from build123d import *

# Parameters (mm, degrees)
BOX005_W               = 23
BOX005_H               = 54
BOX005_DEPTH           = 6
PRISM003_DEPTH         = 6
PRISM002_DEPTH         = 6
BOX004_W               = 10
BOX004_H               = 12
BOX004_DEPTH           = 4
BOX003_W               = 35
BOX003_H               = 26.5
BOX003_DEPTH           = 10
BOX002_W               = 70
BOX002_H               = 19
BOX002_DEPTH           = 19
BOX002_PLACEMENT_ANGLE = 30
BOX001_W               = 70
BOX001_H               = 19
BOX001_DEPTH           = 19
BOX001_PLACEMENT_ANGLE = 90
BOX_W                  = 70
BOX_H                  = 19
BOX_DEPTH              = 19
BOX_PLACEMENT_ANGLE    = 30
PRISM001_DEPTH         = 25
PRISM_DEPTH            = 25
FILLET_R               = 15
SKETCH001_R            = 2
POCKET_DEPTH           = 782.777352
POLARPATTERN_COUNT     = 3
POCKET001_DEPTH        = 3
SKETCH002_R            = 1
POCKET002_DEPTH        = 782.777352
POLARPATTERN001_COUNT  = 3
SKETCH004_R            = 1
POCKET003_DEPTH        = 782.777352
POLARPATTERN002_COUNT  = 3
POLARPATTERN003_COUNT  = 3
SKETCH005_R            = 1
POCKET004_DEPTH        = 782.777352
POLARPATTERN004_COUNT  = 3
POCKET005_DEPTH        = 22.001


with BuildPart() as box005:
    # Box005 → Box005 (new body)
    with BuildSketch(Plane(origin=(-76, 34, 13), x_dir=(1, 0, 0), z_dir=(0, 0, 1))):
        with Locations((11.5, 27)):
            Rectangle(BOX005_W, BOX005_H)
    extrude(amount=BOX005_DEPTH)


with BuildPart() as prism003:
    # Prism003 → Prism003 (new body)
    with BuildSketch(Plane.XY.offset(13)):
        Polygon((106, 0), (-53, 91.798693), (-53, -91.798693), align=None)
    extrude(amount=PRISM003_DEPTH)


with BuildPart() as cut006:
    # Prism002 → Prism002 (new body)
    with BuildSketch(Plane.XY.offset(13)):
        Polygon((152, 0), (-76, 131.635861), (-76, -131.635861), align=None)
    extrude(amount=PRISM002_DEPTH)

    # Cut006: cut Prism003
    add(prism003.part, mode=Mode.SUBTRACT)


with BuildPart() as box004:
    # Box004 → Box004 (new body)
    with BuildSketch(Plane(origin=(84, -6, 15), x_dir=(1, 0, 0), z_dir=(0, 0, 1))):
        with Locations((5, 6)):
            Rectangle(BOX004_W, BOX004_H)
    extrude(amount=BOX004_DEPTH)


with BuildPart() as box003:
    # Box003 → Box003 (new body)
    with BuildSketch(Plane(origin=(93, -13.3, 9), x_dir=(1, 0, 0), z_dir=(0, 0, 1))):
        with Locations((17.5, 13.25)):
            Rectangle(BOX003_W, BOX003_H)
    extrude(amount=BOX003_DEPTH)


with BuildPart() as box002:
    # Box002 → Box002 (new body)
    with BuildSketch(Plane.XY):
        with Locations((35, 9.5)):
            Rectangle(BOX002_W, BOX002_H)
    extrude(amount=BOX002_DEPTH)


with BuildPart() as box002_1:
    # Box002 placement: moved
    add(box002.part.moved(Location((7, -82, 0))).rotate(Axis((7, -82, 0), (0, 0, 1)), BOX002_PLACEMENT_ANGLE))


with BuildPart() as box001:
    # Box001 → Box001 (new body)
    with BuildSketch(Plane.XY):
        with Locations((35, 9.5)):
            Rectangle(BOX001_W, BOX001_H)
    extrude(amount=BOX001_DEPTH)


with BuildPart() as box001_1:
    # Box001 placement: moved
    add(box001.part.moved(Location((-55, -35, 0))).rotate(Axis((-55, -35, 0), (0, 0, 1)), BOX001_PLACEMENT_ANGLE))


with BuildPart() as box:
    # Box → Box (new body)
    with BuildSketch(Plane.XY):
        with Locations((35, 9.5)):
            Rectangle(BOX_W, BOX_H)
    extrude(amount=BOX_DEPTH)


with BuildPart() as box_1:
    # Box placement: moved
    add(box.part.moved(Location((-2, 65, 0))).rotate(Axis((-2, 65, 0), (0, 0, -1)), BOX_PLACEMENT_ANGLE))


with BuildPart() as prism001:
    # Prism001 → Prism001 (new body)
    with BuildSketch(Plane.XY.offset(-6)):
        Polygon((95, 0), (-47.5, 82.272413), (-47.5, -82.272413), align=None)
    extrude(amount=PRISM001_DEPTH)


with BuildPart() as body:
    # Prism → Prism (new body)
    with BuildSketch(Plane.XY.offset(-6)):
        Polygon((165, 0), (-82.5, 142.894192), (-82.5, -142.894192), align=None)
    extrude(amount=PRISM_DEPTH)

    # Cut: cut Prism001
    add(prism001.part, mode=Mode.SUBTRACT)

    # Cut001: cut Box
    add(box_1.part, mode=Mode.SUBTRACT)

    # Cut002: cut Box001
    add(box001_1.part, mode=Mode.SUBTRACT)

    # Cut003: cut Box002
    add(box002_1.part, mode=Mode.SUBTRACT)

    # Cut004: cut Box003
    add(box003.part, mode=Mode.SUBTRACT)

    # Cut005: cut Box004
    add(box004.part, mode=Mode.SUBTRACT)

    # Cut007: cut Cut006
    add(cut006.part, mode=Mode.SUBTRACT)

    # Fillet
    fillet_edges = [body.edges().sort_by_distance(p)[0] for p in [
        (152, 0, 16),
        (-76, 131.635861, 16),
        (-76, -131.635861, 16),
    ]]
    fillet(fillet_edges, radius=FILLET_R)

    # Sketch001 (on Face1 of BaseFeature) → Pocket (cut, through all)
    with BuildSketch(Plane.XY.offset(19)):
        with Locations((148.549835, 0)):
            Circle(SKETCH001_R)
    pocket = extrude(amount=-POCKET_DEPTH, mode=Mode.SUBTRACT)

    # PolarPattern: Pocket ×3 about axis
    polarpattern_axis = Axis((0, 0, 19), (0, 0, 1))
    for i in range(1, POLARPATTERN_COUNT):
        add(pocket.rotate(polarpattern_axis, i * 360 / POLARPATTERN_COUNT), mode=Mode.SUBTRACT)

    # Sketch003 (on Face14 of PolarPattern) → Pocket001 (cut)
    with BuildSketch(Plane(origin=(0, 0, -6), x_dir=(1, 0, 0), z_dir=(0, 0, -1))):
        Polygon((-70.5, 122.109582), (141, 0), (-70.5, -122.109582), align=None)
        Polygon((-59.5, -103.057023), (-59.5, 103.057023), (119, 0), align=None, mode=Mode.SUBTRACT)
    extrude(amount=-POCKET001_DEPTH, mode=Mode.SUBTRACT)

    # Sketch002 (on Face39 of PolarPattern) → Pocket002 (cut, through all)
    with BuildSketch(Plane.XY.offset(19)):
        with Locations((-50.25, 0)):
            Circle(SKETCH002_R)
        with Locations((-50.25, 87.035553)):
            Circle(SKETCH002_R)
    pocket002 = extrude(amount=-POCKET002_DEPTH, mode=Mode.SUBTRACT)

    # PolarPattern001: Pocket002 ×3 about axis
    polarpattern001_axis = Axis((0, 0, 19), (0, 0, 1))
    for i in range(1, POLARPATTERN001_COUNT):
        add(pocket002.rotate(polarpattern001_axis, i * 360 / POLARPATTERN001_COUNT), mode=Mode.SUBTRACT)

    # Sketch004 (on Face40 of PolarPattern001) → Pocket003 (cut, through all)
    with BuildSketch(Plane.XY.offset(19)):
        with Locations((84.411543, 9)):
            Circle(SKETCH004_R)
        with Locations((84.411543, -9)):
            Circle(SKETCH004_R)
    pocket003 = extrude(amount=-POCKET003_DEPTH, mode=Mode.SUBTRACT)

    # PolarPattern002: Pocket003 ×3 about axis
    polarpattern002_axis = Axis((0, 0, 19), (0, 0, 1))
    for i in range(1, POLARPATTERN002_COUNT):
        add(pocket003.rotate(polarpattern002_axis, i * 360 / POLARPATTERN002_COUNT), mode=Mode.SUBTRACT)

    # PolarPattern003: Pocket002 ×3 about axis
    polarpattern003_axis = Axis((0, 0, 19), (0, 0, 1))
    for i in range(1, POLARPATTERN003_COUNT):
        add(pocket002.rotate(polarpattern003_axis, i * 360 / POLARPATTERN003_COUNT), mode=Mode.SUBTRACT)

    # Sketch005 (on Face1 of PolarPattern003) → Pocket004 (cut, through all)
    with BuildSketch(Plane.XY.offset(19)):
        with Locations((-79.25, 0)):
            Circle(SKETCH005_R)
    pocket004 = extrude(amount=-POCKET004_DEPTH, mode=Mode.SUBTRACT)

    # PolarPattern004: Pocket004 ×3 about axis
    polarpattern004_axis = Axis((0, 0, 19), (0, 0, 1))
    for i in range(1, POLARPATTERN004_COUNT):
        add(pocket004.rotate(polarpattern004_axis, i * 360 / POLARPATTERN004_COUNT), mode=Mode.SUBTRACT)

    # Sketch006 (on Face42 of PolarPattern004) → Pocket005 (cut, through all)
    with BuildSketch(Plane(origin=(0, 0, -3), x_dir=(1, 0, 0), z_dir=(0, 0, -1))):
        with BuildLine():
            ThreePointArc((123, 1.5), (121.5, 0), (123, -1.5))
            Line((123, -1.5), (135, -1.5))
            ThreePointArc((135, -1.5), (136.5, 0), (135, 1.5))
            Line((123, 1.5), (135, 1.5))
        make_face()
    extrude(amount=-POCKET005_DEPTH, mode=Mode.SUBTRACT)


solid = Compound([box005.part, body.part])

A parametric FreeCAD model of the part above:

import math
import FreeCAD as App
import Part
import Sketcher
Q = App.Units.Quantity


def edges_at(feature, points):
    """Names of the edges that pass closest to the given points."""
    edges = feature.Shape.Edges
    near = lambda p: min(range(len(edges)), key=lambda i: edges[i].distToShape(Part.Vertex(*p))[0])
    return sorted({f"Edge{near(p) + 1}" for p in points})


def add_polygon(sketch, points):
    """Adds a closed chain of lines whose ends are joined by coincident constraints."""
    first, n = sketch.GeometryCount, len(points)
    for a, b in zip(points, points[1:] + points[:1]):
        sketch.addGeometry(Part.LineSegment(App.Vector(*a, 0), App.Vector(*b, 0)), False)
    for i in range(n):
        sketch.addConstraint(Sketcher.Constraint("Coincident", first + i, 2, first + (i + 1) % n, 1))

doc = App.newDocument("Part")
body = doc.addObject("PartDesign::Body", "Body")

sketch1 = body.newObject("Sketcher::SketchObject", "Sketch")
sketch1.AttachmentSupport = (doc.getObject("XY_Plane"), [""])
sketch1.MapMode = "FlatFace"
sketch1.AttachmentOffset = App.Placement(App.Vector(0, 0, 13), App.Rotation())
add_polygon(sketch1, [(-76, 88), (-76, 34), (-53, 34), (-53, 88)])
sketch1.addConstraint([
    Sketcher.Constraint("Vertical", 0),
    Sketcher.Constraint("Horizontal", 1),
    Sketcher.Constraint("Vertical", 2),
    Sketcher.Constraint("Horizontal", 3),
    Sketcher.Constraint("DistanceX", 1, 1, 1, 2, Q("23 mm")),
    Sketcher.Constraint("DistanceY", 0, 2, 0, 1, Q("54 mm")),
    Sketcher.Constraint("DistanceX", 0, 2, -1, 1, Q("76 mm")),
    Sketcher.Constraint("DistanceY", -1, 1, 0, 2, Q("34 mm")),
])
pad1 = body.newObject("PartDesign::Pad", "Pad")
pad1.Profile = sketch1
pad1.Length = 6
body2 = doc.addObject("PartDesign::Body", "Body001")

sketch2 = body2.newObject("Sketcher::SketchObject", "Sketch001")
sketch2.AttachmentSupport = (doc.getObject("XY_Plane001"), [""])
sketch2.MapMode = "FlatFace"
sketch2.AttachmentOffset = App.Placement(App.Vector(0, 0, 13), App.Rotation())
add_polygon(sketch2, [(106, 0), (-53, 91.798693), (-53, -91.798693)])
sketch2.addConstraint([
    Sketcher.Constraint("Vertical", 1),
    Sketcher.Constraint("PointOnObject", 2, 2, -1),
    Sketcher.Constraint("Equal", 0, 2),
    Sketcher.Constraint("Angle", 0, Q("150 deg")),
    Sketcher.Constraint("DistanceX", 0, 2, -1, 1, Q("53 mm")),
    Sketcher.Constraint("DistanceX", -1, 1, 2, 2, Q("106 mm")),
])
pad2 = body2.newObject("PartDesign::Pad", "Pad001")
pad2.Profile = sketch2
pad2.Length = 6
body3 = doc.addObject("PartDesign::Body", "Body002")

sketch3 = body3.newObject("Sketcher::SketchObject", "Sketch002")
sketch3.AttachmentSupport = (doc.getObject("XY_Plane002"), [""])
sketch3.MapMode = "FlatFace"
sketch3.AttachmentOffset = App.Placement(App.Vector(0, 0, 13), App.Rotation())
add_polygon(sketch3, [(152, 0), (-76, 131.635861), (-76, -131.635861)])
sketch3.addConstraint([
    Sketcher.Constraint("Vertical", 1),
    Sketcher.Constraint("PointOnObject", 2, 2, -1),
    Sketcher.Constraint("Equal", 0, 2),
    Sketcher.Constraint("Angle", 0, Q("150 deg")),
    Sketcher.Constraint("DistanceX", 0, 2, -1, 1, Q("76 mm")),
    Sketcher.Constraint("DistanceX", -1, 1, 2, 2, Q("152 mm")),
])
pad3 = body3.newObject("PartDesign::Pad", "Pad002")
pad3.Profile = sketch3
pad3.Length = 6
doc.recompute()

boolean = body3.newObject("PartDesign::Boolean", "Boolean")
boolean.Type = "Cut"
boolean.addObjects([body2])
body4 = doc.addObject("PartDesign::Body", "Body003")

sketch4 = body4.newObject("Sketcher::SketchObject", "Sketch003")
sketch4.AttachmentSupport = (doc.getObject("XY_Plane003"), [""])
sketch4.MapMode = "FlatFace"
sketch4.AttachmentOffset = App.Placement(App.Vector(0, 0, 15), App.Rotation())
add_polygon(sketch4, [(84, 6), (84, -6), (94, -6), (94, 6)])
sketch4.addConstraint([
    Sketcher.Constraint("Vertical", 0),
    Sketcher.Constraint("Horizontal", 1),
    Sketcher.Constraint("Vertical", 2),
    Sketcher.Constraint("Horizontal", 3),
    Sketcher.Constraint("DistanceX", 1, 1, 1, 2, Q("10 mm")),
    Sketcher.Constraint("DistanceY", 0, 2, 0, 1, Q("12 mm")),
    Sketcher.Constraint("DistanceX", -1, 1, 0, 2, Q("84 mm")),
    Sketcher.Constraint("DistanceY", 0, 2, -1, 1, Q("6 mm")),
])
pad4 = body4.newObject("PartDesign::Pad", "Pad003")
pad4.Profile = sketch4
pad4.Length = 4
body5 = doc.addObject("PartDesign::Body", "Body004")

sketch5 = body5.newObject("Sketcher::SketchObject", "Sketch004")
sketch5.AttachmentSupport = (doc.getObject("XY_Plane004"), [""])
sketch5.MapMode = "FlatFace"
sketch5.AttachmentOffset = App.Placement(App.Vector(0, 0, 9), App.Rotation())
add_polygon(sketch5, [(93, 13.2), (93, -13.3), (128, -13.3), (128, 13.2)])
sketch5.addConstraint([
    Sketcher.Constraint("Vertical", 0),
    Sketcher.Constraint("Horizontal", 1),
    Sketcher.Constraint("Vertical", 2),
    Sketcher.Constraint("Horizontal", 3),
    Sketcher.Constraint("DistanceX", 1, 1, 1, 2, Q("35 mm")),
    Sketcher.Constraint("DistanceY", 0, 2, 0, 1, Q("26.5 mm")),
    Sketcher.Constraint("DistanceX", -1, 1, 0, 2, Q("93 mm")),
    Sketcher.Constraint("DistanceY", 0, 2, -1, 1, Q("13.3 mm")),
])
pad5 = body5.newObject("PartDesign::Pad", "Pad004")
pad5.Profile = sketch5
pad5.Length = 10
body6 = doc.addObject("PartDesign::Body", "Body005")

sketch6 = body6.newObject("Sketcher::SketchObject", "Sketch005")
sketch6.AttachmentSupport = (doc.getObject("XY_Plane005"), [""])
sketch6.MapMode = "FlatFace"
add_polygon(sketch6, [(0, 19), (0, 0), (70, 0), (70, 19)])
sketch6.addConstraint([
    Sketcher.Constraint("Vertical", 0),
    Sketcher.Constraint("Horizontal", 1),
    Sketcher.Constraint("Vertical", 2),
    Sketcher.Constraint("Horizontal", 3),
    Sketcher.Constraint("Coincident", 0, 2, -1, 1),
    Sketcher.Constraint("DistanceX", 1, 1, 1, 2, Q("70 mm")),
    Sketcher.Constraint("DistanceY", 0, 2, 0, 1, Q("19 mm")),
])
pad6 = body6.newObject("PartDesign::Pad", "Pad005")
pad6.Profile = sketch6
pad6.Length = 19
body7 = doc.addObject("PartDesign::Body", "Body006")
doc.recompute()

body6.Placement = App.Placement(App.Vector(7, -82, 0), App.Rotation(App.Vector(0, 0, 1), 30))
boolean2 = body7.newObject("PartDesign::Boolean", "Boolean001")
boolean2.Type = "Fuse"
boolean2.addObjects([body6])
body8 = doc.addObject("PartDesign::Body", "Body007")

sketch7 = body8.newObject("Sketcher::SketchObject", "Sketch006")
sketch7.AttachmentSupport = (doc.getObject("XY_Plane007"), [""])
sketch7.MapMode = "FlatFace"
add_polygon(sketch7, [(0, 19), (0, 0), (70, 0), (70, 19)])
sketch7.addConstraint([
    Sketcher.Constraint("Vertical", 0),
    Sketcher.Constraint("Horizontal", 1),
    Sketcher.Constraint("Vertical", 2),
    Sketcher.Constraint("Horizontal", 3),
    Sketcher.Constraint("Coincident", 0, 2, -1, 1),
    Sketcher.Constraint("DistanceX", 1, 1, 1, 2, Q("70 mm")),
    Sketcher.Constraint("DistanceY", 0, 2, 0, 1, Q("19 mm")),
])
pad7 = body8.newObject("PartDesign::Pad", "Pad006")
pad7.Profile = sketch7
pad7.Length = 19
body9 = doc.addObject("PartDesign::Body", "Body008")
doc.recompute()

body8.Placement = App.Placement(App.Vector(-55, -35, 0), App.Rotation(App.Vector(0, 0, 1), 90))
boolean3 = body9.newObject("PartDesign::Boolean", "Boolean002")
boolean3.Type = "Fuse"
boolean3.addObjects([body8])
body10 = doc.addObject("PartDesign::Body", "Body009")

sketch8 = body10.newObject("Sketcher::SketchObject", "Sketch007")
sketch8.AttachmentSupport = (doc.getObject("XY_Plane009"), [""])
sketch8.MapMode = "FlatFace"
add_polygon(sketch8, [(0, 19), (0, 0), (70, 0), (70, 19)])
sketch8.addConstraint([
    Sketcher.Constraint("Vertical", 0),
    Sketcher.Constraint("Horizontal", 1),
    Sketcher.Constraint("Vertical", 2),
    Sketcher.Constraint("Horizontal", 3),
    Sketcher.Constraint("Coincident", 0, 2, -1, 1),
    Sketcher.Constraint("DistanceX", 1, 1, 1, 2, Q("70 mm")),
    Sketcher.Constraint("DistanceY", 0, 2, 0, 1, Q("19 mm")),
])
pad8 = body10.newObject("PartDesign::Pad", "Pad007")
pad8.Profile = sketch8
pad8.Length = 19
body11 = doc.addObject("PartDesign::Body", "Body010")
doc.recompute()

body10.Placement = App.Placement(App.Vector(-2, 65, 0), App.Rotation(App.Vector(0, 0, -1), 30))
boolean4 = body11.newObject("PartDesign::Boolean", "Boolean003")
boolean4.Type = "Fuse"
boolean4.addObjects([body10])
body12 = doc.addObject("PartDesign::Body", "Body011")

sketch9 = body12.newObject("Sketcher::SketchObject", "Sketch008")
sketch9.AttachmentSupport = (doc.getObject("XY_Plane011"), [""])
sketch9.MapMode = "FlatFace"
sketch9.AttachmentOffset = App.Placement(App.Vector(0, 0, -6), App.Rotation())
add_polygon(sketch9, [(95, 0), (-47.5, 82.272413), (-47.5, -82.272413)])
sketch9.addConstraint([
    Sketcher.Constraint("Vertical", 1),
    Sketcher.Constraint("PointOnObject", 2, 2, -1),
    Sketcher.Constraint("Equal", 0, 2),
    Sketcher.Constraint("Angle", 0, Q("150 deg")),
    Sketcher.Constraint("DistanceX", -1, 1, 2, 2, Q("95 mm")),
    Sketcher.Constraint("DistanceX", 0, 2, -1, 1, Q("47.5 mm")),
])
pad9 = body12.newObject("PartDesign::Pad", "Pad008")
pad9.Profile = sketch9
pad9.Length = 25
body13 = doc.addObject("PartDesign::Body", "Body012")

sketch10 = body13.newObject("Sketcher::SketchObject", "Sketch009")
sketch10.AttachmentSupport = (doc.getObject("XY_Plane012"), [""])
sketch10.MapMode = "FlatFace"
sketch10.AttachmentOffset = App.Placement(App.Vector(0, 0, -6), App.Rotation())
add_polygon(sketch10, [(165, 0), (-82.5, 142.894192), (-82.5, -142.894192)])
sketch10.addConstraint([
    Sketcher.Constraint("Vertical", 1),
    Sketcher.Constraint("PointOnObject", 2, 2, -1),
    Sketcher.Constraint("Equal", 0, 2),
    Sketcher.Constraint("Angle", 0, Q("150 deg")),
    Sketcher.Constraint("DistanceX", -1, 1, 2, 2, Q("165 mm")),
    Sketcher.Constraint("DistanceX", 0, 2, -1, 1, Q("82.5 mm")),
])
pad10 = body13.newObject("PartDesign::Pad", "Pad009")
pad10.Profile = sketch10
pad10.Length = 25
doc.recompute()

boolean5 = body13.newObject("PartDesign::Boolean", "Boolean004")
boolean5.Type = "Cut"
boolean5.addObjects([body12])
doc.recompute()

boolean6 = body13.newObject("PartDesign::Boolean", "Boolean005")
boolean6.Type = "Cut"
boolean6.addObjects([body11])
doc.recompute()

boolean7 = body13.newObject("PartDesign::Boolean", "Boolean006")
boolean7.Type = "Cut"
boolean7.addObjects([body9])
doc.recompute()

boolean8 = body13.newObject("PartDesign::Boolean", "Boolean007")
boolean8.Type = "Cut"
boolean8.addObjects([body7])
doc.recompute()

boolean9 = body13.newObject("PartDesign::Boolean", "Boolean008")
boolean9.Type = "Cut"
boolean9.addObjects([body5])
doc.recompute()

boolean10 = body13.newObject("PartDesign::Boolean", "Boolean009")
boolean10.Type = "Cut"
boolean10.addObjects([body4])
doc.recompute()

boolean11 = body13.newObject("PartDesign::Boolean", "Boolean010")
boolean11.Type = "Cut"
boolean11.addObjects([body3])
doc.recompute()

fillet = body13.newObject("PartDesign::Fillet", "Fillet")
fillet.Base = (boolean11, edges_at(boolean11, [(152, 0, 16), (-76, 131.636, 16), (-76, -131.636, 16)]))
fillet.Radius = 15

sketch11 = body13.newObject("Sketcher::SketchObject", "Sketch010")
sketch11.AttachmentSupport = (doc.getObject("XY_Plane012"), [""])
sketch11.MapMode = "FlatFace"
sketch11.AttachmentOffset = App.Placement(App.Vector(0, 0, 19), App.Rotation())
sketch11.addGeometry(Part.Circle(App.Vector(148.549835, 0, 0), App.Vector(0, 0, 1), 2), False)
sketch11.addConstraint([
    Sketcher.Constraint("PointOnObject", 0, 3, -1),
    Sketcher.Constraint("Diameter", 0, Q("4 mm")),
    Sketcher.Constraint("DistanceX", -1, 1, 0, 3, Q("148.549835 mm")),
])
pocket1 = body13.newObject("PartDesign::Pocket", "Pocket")
pocket1.Profile = sketch11
pocket1.Type = "ThroughAll"
doc.recompute()

polarpattern = body13.newObject("PartDesign::PolarPattern", "PolarPattern")
polarpattern.Originals = [pocket1]
polarpattern.Axis = (doc.getObject("Z_Axis012"), [""])
polarpattern.Angle = 360
polarpattern.Occurrences = 3
body13.Tip = polarpattern

sketch12 = body13.newObject("Sketcher::SketchObject", "Sketch011")
sketch12.AttachmentSupport = (doc.getObject("XY_Plane012"), [""])
sketch12.MapMode = "FlatFace"
sketch12.AttachmentOffset = App.Placement(App.Vector(0, 0, -6), App.Rotation())
add_polygon(sketch12, [(141, 0), (-70.5, -122.109582), (-70.5, 122.109582)])
add_polygon(sketch12, [(-59.5, 103.057023), (-59.5, -103.057023), (119, 0)])
sketch12.addConstraint([
    Sketcher.Constraint("Vertical", 1),
    Sketcher.Constraint("Vertical", 3),
    Sketcher.Constraint("PointOnObject", 2, 2, -1),
    Sketcher.Constraint("PointOnObject", 4, 2, -1),
    Sketcher.Constraint("Parallel", 0, 4),
    Sketcher.Constraint("Parallel", 2, 5),
    Sketcher.Constraint("Equal", 0, 2),
    Sketcher.Constraint("Angle", 0, Q("-150 deg")),
    Sketcher.Constraint("DistanceX", -1, 1, 2, 2, Q("141 mm")),
    Sketcher.Constraint("DistanceX", -1, 1, 4, 2, Q("119 mm")),
    Sketcher.Constraint("DistanceX", 0, 2, 3, 2, Q("11 mm")),
    Sketcher.Constraint("DistanceX", 0, 2, -1, 1, Q("70.5 mm")),
])
pocket2 = body13.newObject("PartDesign::Pocket", "Pocket001")
pocket2.Profile = sketch12
pocket2.Length = 3
pocket2.Reversed = True

sketch13 = body13.newObject("Sketcher::SketchObject", "Sketch012")
sketch13.AttachmentSupport = (doc.getObject("XY_Plane012"), [""])
sketch13.MapMode = "FlatFace"
sketch13.AttachmentOffset = App.Placement(App.Vector(0, 0, 19), App.Rotation())
sketch13.addGeometry([
    Part.Circle(App.Vector(-50.25, 0, 0), App.Vector(0, 0, 1), 1),
    Part.Circle(App.Vector(-50.25, 87.035553, 0), App.Vector(0, 0, 1), 1),
], False)
sketch13.addConstraint([
    Sketcher.Constraint("Equal", 0, 1),
    Sketcher.Constraint("PointOnObject", 0, 3, -1),
    Sketcher.Constraint("Vertical", 0, 3, 1, 3),
    Sketcher.Constraint("Diameter", 0, Q("2 mm")),
    Sketcher.Constraint("DistanceX", 0, 3, -1, 1, Q("50.25 mm")),
    Sketcher.Constraint("DistanceY", -1, 1, 1, 3, Q("87.035553 mm")),
])
pocket3 = body13.newObject("PartDesign::Pocket", "Pocket002")
pocket3.Profile = sketch13
pocket3.Type = "ThroughAll"
doc.recompute()

polarpattern2 = body13.newObject("PartDesign::PolarPattern", "PolarPattern001")
polarpattern2.Originals = [pocket3]
polarpattern2.Axis = (doc.getObject("Z_Axis012"), [""])
polarpattern2.Angle = 360
polarpattern2.Occurrences = 3
body13.Tip = polarpattern2

sketch14 = body13.newObject("Sketcher::SketchObject", "Sketch013")
sketch14.AttachmentSupport = (doc.getObject("XY_Plane012"), [""])
sketch14.MapMode = "FlatFace"
sketch14.AttachmentOffset = App.Placement(App.Vector(0, 0, 19), App.Rotation())
sketch14.addGeometry([
    Part.Circle(App.Vector(84.411543, 9, 0), App.Vector(0, 0, 1), 1),
    Part.Circle(App.Vector(84.411543, -9, 0), App.Vector(0, 0, 1), 1),
], False)
sketch14.addConstraint([
    Sketcher.Constraint("Equal", 0, 1),
    Sketcher.Constraint("Symmetric", 0, 3, 1, 3, -1),
    Sketcher.Constraint("Diameter", 0, Q("2 mm")),
    Sketcher.Constraint("DistanceY", -1, 1, 0, 3, Q("9 mm")),
    Sketcher.Constraint("DistanceX", -1, 1, 0, 3, Q("84.411543 mm")),
])
pocket4 = body13.newObject("PartDesign::Pocket", "Pocket003")
pocket4.Profile = sketch14
pocket4.Type = "ThroughAll"
doc.recompute()

polarpattern3 = body13.newObject("PartDesign::PolarPattern", "PolarPattern002")
polarpattern3.Originals = [pocket4]
polarpattern3.Axis = (doc.getObject("Z_Axis012"), [""])
polarpattern3.Angle = 360
polarpattern3.Occurrences = 3
body13.Tip = polarpattern3
doc.recompute()

polarpattern4 = body13.newObject("PartDesign::PolarPattern", "PolarPattern003")
polarpattern4.Originals = [pocket3]
polarpattern4.Axis = (doc.getObject("Z_Axis012"), [""])
polarpattern4.Angle = 360
polarpattern4.Occurrences = 3
body13.Tip = polarpattern4

sketch15 = body13.newObject("Sketcher::SketchObject", "Sketch014")
sketch15.AttachmentSupport = (doc.getObject("XY_Plane012"), [""])
sketch15.MapMode = "FlatFace"
sketch15.AttachmentOffset = App.Placement(App.Vector(0, 0, 19), App.Rotation())
sketch15.addGeometry(Part.Circle(App.Vector(-79.25, 0, 0), App.Vector(0, 0, 1), 1), False)
sketch15.addConstraint([
    Sketcher.Constraint("PointOnObject", 0, 3, -1),
    Sketcher.Constraint("Diameter", 0, Q("2 mm")),
    Sketcher.Constraint("DistanceX", 0, 3, -1, 1, Q("79.25 mm")),
])
pocket5 = body13.newObject("PartDesign::Pocket", "Pocket004")
pocket5.Profile = sketch15
pocket5.Type = "ThroughAll"
doc.recompute()

polarpattern5 = body13.newObject("PartDesign::PolarPattern", "PolarPattern004")
polarpattern5.Originals = [pocket5]
polarpattern5.Axis = (doc.getObject("Z_Axis012"), [""])
polarpattern5.Angle = 360
polarpattern5.Occurrences = 3
body13.Tip = polarpattern5

sketch16 = body13.newObject("Sketcher::SketchObject", "Sketch015")
sketch16.AttachmentSupport = (doc.getObject("XY_Plane012"), [""])
sketch16.MapMode = "FlatFace"
sketch16.AttachmentOffset = App.Placement(App.Vector(0, 0, -3), App.Rotation())
sketch16.addGeometry([
    Part.ArcOfCircle(Part.Circle(App.Vector(123, 0, 0), App.Vector(0, 0, 1), 1.5), math.radians(90), math.radians(270)),
    Part.LineSegment(App.Vector(123, 1.5, 0), App.Vector(135, 1.5, 0)),
    Part.ArcOfCircle(Part.Circle(App.Vector(135, 0, 0), App.Vector(0, 0, 1), 1.5), math.radians(-90), math.radians(90)),
    Part.LineSegment(App.Vector(135, -1.5, 0), App.Vector(123, -1.5, 0)),
], False)
sketch16.addConstraint([
    Sketcher.Constraint("Tangent", 0, 1, 1, 1),
    Sketcher.Constraint("Tangent", 1, 2, 2, 2),
    Sketcher.Constraint("Tangent", 2, 1, 3, 1),
    Sketcher.Constraint("Tangent", 3, 2, 0, 2),
    Sketcher.Constraint("Horizontal", 1),
    Sketcher.Constraint("Horizontal", 3),
    Sketcher.Constraint("PointOnObject", 0, 3, -1),
    Sketcher.Constraint("Radius", 0, Q("1.5 mm")),
    Sketcher.Constraint("DistanceX", 1, 1, 1, 2, Q("12 mm")),
    Sketcher.Constraint("DistanceX", -1, 1, 0, 3, Q("123 mm")),
])
pocket6 = body13.newObject("PartDesign::Pocket", "Pocket005")
pocket6.Profile = sketch16
pocket6.Type = "ThroughAll"
pocket6.Reversed = True

doc.recompute()
